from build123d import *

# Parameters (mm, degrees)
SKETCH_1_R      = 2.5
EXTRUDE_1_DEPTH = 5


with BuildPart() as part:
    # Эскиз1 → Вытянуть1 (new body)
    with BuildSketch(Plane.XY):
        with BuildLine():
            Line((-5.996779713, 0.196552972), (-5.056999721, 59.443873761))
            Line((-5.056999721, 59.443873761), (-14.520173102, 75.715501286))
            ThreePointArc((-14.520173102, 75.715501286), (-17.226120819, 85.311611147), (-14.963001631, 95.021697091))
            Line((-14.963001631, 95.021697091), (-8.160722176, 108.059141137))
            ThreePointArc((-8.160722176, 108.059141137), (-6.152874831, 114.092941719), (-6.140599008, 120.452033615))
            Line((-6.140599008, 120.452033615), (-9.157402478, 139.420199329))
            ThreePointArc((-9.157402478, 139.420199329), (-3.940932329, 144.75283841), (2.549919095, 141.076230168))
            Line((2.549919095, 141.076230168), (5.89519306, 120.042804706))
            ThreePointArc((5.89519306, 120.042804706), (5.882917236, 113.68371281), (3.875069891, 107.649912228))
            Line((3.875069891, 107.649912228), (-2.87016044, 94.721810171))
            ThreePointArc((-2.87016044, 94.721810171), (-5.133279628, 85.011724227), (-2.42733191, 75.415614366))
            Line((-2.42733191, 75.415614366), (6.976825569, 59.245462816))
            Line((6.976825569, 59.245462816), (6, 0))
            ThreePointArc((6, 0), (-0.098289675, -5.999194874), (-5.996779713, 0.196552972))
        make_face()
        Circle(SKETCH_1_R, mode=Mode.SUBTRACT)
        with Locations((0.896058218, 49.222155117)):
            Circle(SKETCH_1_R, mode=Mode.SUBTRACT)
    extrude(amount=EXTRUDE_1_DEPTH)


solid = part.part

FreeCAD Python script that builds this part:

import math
import FreeCAD as App
import Part
import Sketcher
from FreeCAD import Vector
Q = App.Units.Quantity

doc = App.newDocument("Part")
body = doc.addObject("PartDesign::Body", "Body")

# Sketch on XY plane
sketch1 = body.newObject("Sketcher::SketchObject", "Sketch")
sketch1.AttachmentSupport = (doc.getObject("XY_Plane"), [""])
sketch1.MapMode = "FlatFace"
sketch1.addGeometry([
    Part.LineSegment(Vector(-5.1, 59.4, 0), Vector(-6, 0.2, 0)),  # 0
    Part.ArcOfCircle(Part.Circle(Vector(0, 0, 0), Vector(0, 0, 1), 6), math.radians(178), math.radians(360)),  # 1
    Part.LineSegment(Vector(6, 0, 0), Vector(7, 59.2, 0)),  # 2
    Part.LineSegment(Vector(7, 59.2, 0), Vector(-2.4, 75.4, 0)),  # 3
    Part.ArcOfCircle(Part.Circle(Vector(14.9, 85.5, 0), Vector(0, 0, 1), 20), math.radians(152), math.radians(210)),  # 4
    Part.LineSegment(Vector(-2.9, 94.7, 0), Vector(3.9, 107.6, 0)),  # 5
    Part.ArcOfCircle(Part.Circle(Vector(-13.9, 116.9, 0), Vector(0, 0, 1), 20), math.radians(-28), math.radians(9)),  # 6
    Part.LineSegment(Vector(5.9, 120, 0), Vector(2.5, 141.1, 0)),  # 7
    Part.ArcOfCircle(Part.Circle(Vector(-3.1, 138.7, 0), Vector(0, 0, 1), 6.1), math.radians(23), math.radians(173)),  # 8
    Part.LineSegment(Vector(-9.2, 139.4, 0), Vector(-6.1, 120.5, 0)),  # 9
    Part.ArcOfCircle(Part.Circle(Vector(-25.9, 117.3, 0), Vector(0, 0, 1), 20), math.radians(-28), math.radians(9)),  # 10
    Part.LineSegment(Vector(-8.2, 108.1, 0), Vector(-15, 95, 0)),  # 11
    Part.ArcOfCircle(Part.Circle(Vector(2.8, 85.8, 0), Vector(0, 0, 1), 20), math.radians(152), math.radians(210)),  # 12
    Part.LineSegment(Vector(-14.5, 75.7, 0), Vector(-5.1, 59.4, 0)),  # 13
    Part.Circle(Vector(0, 0, 0), Vector(0, 0, 1), 2.5),  # 14
    Part.Circle(Vector(0.9, 49.2, 0), Vector(0, 0, 1), 2.5),  # 15
], False)
sketch1.addConstraint([
    Sketcher.Constraint("Coincident", 0, 2, 1, 1),
    Sketcher.Constraint("Coincident", 1, 2, 2, 1),
    Sketcher.Constraint("Coincident", 2, 2, 3, 1),
    Sketcher.Constraint("Tangent", 3, 2, 4, 2),
    Sketcher.Constraint("Tangent", 4, 1, 5, 1),
    Sketcher.Constraint("Tangent", 5, 2, 6, 1),
    Sketcher.Constraint("Tangent", 6, 2, 7, 1),
    Sketcher.Constraint("Coincident", 7, 2, 8, 1),
    Sketcher.Constraint("Coincident", 8, 2, 9, 1),
    Sketcher.Constraint("Tangent", 9, 2, 10, 2),
    Sketcher.Constraint("Tangent", 10, 1, 11, 1),
    Sketcher.Constraint("Tangent", 11, 2, 12, 1),
    Sketcher.Constraint("Tangent", 12, 2, 13, 1),
    Sketcher.Constraint("Coincident", 13, 2, 0, 1),
    Sketcher.Constraint("Coincident", 1, 3, -1, 1),
    Sketcher.Constraint("Coincident", 14, 3, -1, 1),
    Sketcher.Constraint("Equal", 4, 6),
    Sketcher.Constraint("Equal", 6, 10),
    Sketcher.Constraint("Equal", 10, 12),
    Sketcher.Constraint("Equal", 14, 15),
    Sketcher.Constraint("PointOnObject", 1, 2, -1),
    Sketcher.Constraint("Parallel", 7, 9),
    Sketcher.Constraint("Parallel", 5, 11),
    Sketcher.Constraint("Parallel", 3, 13),
    Sketcher.Constraint("Diameter", 14, Q("5 mm")),
    Sketcher.Constraint("Radius", 1, Q("6 mm")),
    Sketcher.Constraint("Radius", 4, Q("20 mm")),
    Sketcher.Constraint("DistanceX", 11, 2, -1, 1, Q("14.963002 mm")),
    Sketcher.Constraint("DistanceX", 13, 2, -1, 1, Q("5.057 mm")),
    Sketcher.Constraint("Radius", 8, Q("6.115948 mm")),
    Sketcher.Constraint("DistanceX", 10, 3, 8, 3, Q("22.808001 mm")),
    Sketcher.Constraint("DistanceX", 12, 2, 2, 2, Q("21.496999 mm")),
    Sketcher.Constraint("DistanceY", -1, 1, 8, 2, Q("139.420199 mm")),
    Sketcher.Constraint("DistanceX", 9, 2, -1, 1, Q("6.140599 mm")),
    Sketcher.Constraint("DistanceY", -1, 1, 12, 2, Q("75.715501 mm")),
    Sketcher.Constraint("DistanceX", 0, 2, 12, 3, Q("8.7654 mm")),
    Sketcher.Constraint("DistanceY", 10, 3, 6, 2, Q("2.732199 mm")),
    Sketcher.Constraint("Distance", 7, Q("21.29779 mm")),
    Sketcher.Constraint("DistanceX", -1, 1, 4, 3, Q("14.861461 mm")),
    Sketcher.Constraint("DistanceX", 6, 3, -1, 1, Q("13.856552 mm")),
    Sketcher.Constraint("DistanceX", -1, 1, 12, 3, Q("2.76862 mm")),
    Sketcher.Constraint("DistanceX", -1, 1, 15, 3, Q("0.896058 mm")),
    Sketcher.Constraint("DistanceX", 3, 2, -1, 1, Q("2.427332 mm")),
    Sketcher.Constraint("DistanceY", 15, 3, 4, 3, Q("36.248191 mm")),
])
pad1 = body.newObject("PartDesign::Pad", "Pad")
pad1.Profile = sketch1
pad1.Length = 5

doc.recompute()
